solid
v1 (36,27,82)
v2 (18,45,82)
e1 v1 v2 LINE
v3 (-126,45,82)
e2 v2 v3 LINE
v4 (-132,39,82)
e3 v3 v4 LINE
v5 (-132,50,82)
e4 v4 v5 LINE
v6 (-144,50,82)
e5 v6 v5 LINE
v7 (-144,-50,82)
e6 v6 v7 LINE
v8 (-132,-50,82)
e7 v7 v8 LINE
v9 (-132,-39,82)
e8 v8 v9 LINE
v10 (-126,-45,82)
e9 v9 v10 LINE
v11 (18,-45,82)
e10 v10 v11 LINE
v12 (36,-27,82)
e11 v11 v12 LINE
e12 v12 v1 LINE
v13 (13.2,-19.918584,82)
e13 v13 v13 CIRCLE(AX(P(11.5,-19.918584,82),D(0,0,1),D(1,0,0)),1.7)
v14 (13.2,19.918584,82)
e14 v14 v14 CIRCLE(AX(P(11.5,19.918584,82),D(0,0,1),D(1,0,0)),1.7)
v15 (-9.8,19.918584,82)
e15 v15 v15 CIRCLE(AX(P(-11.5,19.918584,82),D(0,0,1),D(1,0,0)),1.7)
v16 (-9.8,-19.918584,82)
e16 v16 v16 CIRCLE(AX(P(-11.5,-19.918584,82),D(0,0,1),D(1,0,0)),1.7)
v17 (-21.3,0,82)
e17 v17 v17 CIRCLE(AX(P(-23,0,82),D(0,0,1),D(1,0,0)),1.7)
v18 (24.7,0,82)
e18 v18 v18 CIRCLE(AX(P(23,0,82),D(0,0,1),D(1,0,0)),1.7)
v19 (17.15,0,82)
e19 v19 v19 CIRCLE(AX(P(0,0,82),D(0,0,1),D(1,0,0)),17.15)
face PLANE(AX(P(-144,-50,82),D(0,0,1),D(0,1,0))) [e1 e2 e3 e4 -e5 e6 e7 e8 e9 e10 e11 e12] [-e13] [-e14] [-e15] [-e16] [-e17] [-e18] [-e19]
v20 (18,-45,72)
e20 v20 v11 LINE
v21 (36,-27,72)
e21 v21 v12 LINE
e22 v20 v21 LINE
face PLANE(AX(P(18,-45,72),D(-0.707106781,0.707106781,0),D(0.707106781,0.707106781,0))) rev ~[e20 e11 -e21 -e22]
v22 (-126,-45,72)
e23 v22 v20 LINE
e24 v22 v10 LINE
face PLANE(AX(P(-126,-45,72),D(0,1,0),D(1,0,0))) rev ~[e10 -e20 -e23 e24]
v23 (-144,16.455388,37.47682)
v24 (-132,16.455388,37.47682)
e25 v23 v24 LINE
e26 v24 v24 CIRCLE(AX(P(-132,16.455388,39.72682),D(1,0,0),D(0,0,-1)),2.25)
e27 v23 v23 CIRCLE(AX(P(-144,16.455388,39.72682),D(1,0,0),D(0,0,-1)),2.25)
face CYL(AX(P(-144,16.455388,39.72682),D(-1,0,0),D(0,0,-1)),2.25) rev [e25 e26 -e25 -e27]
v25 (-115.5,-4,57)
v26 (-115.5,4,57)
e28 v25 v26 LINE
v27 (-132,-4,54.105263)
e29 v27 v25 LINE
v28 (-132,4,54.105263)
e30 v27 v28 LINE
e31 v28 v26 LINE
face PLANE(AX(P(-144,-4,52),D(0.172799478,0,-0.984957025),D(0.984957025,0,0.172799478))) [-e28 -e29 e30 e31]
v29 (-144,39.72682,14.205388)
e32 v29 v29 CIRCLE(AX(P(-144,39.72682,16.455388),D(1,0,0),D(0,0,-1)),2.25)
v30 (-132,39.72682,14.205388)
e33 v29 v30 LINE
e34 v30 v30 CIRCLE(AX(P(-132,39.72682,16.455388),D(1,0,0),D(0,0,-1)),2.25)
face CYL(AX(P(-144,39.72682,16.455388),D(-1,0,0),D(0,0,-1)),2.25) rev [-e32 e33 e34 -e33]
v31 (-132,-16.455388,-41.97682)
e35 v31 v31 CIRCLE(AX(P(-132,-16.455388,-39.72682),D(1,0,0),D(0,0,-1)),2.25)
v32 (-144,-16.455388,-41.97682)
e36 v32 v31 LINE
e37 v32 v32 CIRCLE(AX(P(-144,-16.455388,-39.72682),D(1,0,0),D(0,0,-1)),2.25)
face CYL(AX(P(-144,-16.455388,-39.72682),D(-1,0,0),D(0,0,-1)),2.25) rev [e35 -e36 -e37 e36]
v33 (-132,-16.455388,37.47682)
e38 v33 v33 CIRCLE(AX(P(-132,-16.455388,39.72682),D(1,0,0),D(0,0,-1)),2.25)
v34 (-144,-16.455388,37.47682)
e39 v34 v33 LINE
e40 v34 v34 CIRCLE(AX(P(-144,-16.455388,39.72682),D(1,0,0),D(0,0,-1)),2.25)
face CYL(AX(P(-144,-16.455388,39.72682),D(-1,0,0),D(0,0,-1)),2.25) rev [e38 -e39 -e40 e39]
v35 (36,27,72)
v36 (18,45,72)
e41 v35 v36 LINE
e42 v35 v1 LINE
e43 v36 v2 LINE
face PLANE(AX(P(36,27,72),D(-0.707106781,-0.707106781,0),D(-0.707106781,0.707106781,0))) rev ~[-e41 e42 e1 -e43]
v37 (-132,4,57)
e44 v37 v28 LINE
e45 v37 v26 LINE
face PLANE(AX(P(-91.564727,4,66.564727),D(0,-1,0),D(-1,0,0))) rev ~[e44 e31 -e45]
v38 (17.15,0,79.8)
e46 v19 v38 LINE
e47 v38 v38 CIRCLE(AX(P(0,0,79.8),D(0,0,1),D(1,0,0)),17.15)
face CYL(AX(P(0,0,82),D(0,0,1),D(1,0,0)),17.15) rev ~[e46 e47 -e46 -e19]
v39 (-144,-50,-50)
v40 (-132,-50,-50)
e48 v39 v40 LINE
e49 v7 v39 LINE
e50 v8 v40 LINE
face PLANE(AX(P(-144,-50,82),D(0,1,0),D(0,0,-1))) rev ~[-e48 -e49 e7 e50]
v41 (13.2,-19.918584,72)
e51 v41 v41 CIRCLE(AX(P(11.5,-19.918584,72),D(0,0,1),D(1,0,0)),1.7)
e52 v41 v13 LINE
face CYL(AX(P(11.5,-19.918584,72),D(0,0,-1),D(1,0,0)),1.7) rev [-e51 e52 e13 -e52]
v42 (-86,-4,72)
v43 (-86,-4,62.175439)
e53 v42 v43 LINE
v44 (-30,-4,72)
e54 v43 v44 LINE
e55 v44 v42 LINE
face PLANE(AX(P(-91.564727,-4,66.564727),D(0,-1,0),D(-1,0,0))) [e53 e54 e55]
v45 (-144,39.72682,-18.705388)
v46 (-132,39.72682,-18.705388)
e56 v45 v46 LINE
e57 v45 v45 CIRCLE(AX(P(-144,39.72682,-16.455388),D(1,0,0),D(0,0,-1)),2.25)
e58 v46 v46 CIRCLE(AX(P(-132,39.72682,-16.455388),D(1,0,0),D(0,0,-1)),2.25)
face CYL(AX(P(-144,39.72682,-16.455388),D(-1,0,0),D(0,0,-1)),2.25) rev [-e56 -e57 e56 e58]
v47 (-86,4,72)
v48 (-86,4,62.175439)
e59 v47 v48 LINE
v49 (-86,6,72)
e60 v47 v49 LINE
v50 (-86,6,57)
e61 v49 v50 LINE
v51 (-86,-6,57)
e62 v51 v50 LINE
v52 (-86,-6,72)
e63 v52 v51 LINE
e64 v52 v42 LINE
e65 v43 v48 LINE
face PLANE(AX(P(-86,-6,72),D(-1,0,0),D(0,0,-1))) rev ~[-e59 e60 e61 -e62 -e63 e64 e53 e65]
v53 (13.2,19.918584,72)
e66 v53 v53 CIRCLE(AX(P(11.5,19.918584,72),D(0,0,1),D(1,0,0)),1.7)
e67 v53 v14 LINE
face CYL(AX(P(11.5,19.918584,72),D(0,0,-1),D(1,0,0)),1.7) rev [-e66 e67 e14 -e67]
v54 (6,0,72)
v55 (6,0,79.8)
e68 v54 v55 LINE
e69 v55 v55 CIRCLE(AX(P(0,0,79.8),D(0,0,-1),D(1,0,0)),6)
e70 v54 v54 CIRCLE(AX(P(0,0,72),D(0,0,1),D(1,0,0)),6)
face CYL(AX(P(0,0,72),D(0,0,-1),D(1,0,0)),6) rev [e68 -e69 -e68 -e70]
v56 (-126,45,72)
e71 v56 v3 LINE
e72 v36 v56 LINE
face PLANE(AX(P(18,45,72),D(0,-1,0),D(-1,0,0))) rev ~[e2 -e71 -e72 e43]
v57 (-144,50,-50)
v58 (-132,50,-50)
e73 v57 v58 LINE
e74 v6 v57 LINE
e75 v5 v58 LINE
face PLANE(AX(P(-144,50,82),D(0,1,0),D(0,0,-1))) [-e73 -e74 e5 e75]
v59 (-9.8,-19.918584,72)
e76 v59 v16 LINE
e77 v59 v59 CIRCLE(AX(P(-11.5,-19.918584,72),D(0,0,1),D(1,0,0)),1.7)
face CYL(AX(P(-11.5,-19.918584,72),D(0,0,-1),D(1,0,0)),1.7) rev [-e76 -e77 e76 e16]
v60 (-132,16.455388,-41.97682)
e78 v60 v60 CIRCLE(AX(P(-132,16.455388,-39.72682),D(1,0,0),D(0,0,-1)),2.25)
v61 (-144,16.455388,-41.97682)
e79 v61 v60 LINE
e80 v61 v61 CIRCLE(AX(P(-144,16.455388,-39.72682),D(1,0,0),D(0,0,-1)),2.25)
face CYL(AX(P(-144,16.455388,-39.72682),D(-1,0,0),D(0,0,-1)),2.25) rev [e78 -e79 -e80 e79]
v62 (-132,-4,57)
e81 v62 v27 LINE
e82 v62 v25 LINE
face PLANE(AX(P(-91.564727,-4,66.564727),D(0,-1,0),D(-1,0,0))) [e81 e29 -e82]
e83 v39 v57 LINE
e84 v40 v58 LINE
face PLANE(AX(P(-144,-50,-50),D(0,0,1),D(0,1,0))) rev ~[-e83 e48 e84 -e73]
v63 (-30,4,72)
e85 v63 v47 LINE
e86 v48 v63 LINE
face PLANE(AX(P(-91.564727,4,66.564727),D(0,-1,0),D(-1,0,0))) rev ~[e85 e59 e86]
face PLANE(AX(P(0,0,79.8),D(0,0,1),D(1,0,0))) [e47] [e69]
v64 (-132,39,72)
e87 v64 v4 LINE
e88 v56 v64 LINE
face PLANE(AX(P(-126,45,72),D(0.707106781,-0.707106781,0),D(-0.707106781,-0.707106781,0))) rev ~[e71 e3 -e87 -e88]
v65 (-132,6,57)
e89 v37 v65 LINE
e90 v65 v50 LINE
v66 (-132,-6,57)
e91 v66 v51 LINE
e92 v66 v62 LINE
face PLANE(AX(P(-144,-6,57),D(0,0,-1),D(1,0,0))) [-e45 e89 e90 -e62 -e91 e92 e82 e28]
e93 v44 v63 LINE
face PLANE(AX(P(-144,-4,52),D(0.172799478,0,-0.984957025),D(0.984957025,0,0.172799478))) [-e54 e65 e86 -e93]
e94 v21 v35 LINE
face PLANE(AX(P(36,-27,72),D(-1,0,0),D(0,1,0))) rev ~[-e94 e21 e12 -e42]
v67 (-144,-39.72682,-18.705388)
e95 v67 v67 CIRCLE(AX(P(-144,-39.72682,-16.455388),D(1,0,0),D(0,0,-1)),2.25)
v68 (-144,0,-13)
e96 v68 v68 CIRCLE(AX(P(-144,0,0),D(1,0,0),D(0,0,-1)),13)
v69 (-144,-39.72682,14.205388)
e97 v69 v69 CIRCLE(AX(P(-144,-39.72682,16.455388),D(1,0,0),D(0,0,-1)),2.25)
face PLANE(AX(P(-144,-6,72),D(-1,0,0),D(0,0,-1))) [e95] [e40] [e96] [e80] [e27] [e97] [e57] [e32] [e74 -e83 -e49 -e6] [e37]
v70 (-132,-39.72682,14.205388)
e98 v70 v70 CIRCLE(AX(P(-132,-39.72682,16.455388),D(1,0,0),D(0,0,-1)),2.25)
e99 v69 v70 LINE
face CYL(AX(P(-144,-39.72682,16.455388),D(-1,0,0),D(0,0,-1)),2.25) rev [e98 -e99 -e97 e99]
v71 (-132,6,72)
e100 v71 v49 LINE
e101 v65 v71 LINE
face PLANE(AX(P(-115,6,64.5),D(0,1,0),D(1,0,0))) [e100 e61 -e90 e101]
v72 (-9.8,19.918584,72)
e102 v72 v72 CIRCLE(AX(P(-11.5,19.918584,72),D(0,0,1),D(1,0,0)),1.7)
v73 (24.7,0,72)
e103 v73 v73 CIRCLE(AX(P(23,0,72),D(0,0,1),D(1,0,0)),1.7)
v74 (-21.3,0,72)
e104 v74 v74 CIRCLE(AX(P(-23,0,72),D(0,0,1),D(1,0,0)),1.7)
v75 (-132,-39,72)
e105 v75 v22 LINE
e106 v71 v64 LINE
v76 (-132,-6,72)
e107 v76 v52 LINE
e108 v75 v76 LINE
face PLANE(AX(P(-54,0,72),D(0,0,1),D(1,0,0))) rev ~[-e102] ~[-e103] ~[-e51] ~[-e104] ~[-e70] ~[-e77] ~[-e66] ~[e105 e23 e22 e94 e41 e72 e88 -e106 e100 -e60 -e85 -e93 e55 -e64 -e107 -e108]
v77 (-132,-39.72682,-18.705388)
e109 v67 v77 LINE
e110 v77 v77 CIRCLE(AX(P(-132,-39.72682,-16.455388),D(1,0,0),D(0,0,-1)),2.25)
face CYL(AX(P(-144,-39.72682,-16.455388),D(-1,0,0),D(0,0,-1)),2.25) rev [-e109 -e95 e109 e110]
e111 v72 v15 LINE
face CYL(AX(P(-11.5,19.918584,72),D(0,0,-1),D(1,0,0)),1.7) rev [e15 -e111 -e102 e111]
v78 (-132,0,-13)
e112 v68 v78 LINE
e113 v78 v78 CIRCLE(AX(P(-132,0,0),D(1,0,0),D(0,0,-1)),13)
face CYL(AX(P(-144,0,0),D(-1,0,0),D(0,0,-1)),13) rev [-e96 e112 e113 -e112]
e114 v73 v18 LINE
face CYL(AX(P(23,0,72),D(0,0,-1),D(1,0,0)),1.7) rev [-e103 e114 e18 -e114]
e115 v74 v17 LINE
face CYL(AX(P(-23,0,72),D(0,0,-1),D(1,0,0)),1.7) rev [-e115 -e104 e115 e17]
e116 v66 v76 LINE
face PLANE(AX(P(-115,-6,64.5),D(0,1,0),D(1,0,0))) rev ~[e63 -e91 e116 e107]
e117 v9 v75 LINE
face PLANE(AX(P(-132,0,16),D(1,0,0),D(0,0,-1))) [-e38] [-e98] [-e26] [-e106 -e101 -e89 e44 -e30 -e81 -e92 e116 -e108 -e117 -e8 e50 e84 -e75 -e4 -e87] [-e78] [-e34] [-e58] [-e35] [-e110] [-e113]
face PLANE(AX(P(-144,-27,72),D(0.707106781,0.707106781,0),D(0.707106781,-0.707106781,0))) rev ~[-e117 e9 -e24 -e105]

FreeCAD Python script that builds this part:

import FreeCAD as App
import Part
import Sketcher
from FreeCAD import Vector

doc = App.newDocument("Part")
body = doc.addObject("PartDesign::Body", "Body")

# Sketch on XY plane
sketch1 = body.newObject("Sketcher::SketchObject", "Sketch")
sketch1.AttachmentSupport = (doc.getObject("XY_Plane"), [""])
sketch1.MapMode = "FlatFace"
sketch1.AttachmentOffset = App.Placement(Vector(0, 0, 72), App.Rotation())
sketch1.addGeometry(Part.LineSegment(Vector(-126, -45, 0), Vector(18, -45, 0)), False)
sketch1.addGeometry(Part.LineSegment(Vector(18, -45, 0), Vector(36, -27, 0)), False)
sketch1.addGeometry(Part.LineSegment(Vector(36, -27, 0), Vector(36, 27, 0)), False)
sketch1.addGeometry(Part.LineSegment(Vector(36, 27, 0), Vector(18, 45, 0)), False)
sketch1.addGeometry(Part.LineSegment(Vector(18, 45, 0), Vector(-126, 45, 0)), False)
sketch1.addGeometry(Part.LineSegment(Vector(-126, 45, 0), Vector(-144, 27, 0)), False)
sketch1.addGeometry(Part.LineSegment(Vector(-144, 27, 0), Vector(-144, -27, 0)), False)
sketch1.addGeometry(Part.LineSegment(Vector(-144, -27, 0), Vector(-126, -45, 0)), False)
sketch1.addGeometry(Part.Circle(Vector(-11.5, -19.9, 0), Vector(0, 0, 1), 1.7), False)
sketch1.addGeometry(Part.Circle(Vector(11.5, -19.9, 0), Vector(0, 0, 1), 1.7), False)
sketch1.addGeometry(Part.Circle(Vector(-23, 0, 0), Vector(0, 0, 1), 1.7), False)
sketch1.addGeometry(Part.Circle(Vector(0, 0, 0), Vector(0, 0, 1), 6), False)
sketch1.addGeometry(Part.Circle(Vector(-11.5, 19.9, 0), Vector(0, 0, 1), 1.7), False)
sketch1.addGeometry(Part.Circle(Vector(23, 0, 0), Vector(0, 0, 1), 1.7), False)
sketch1.addGeometry(Part.Circle(Vector(11.5, 19.9, 0), Vector(0, 0, 1), 1.7), False)
sketch1.addConstraint(Sketcher.Constraint("Coincident", 0, 2, 1, 1))
sketch1.addConstraint(Sketcher.Constraint("Coincident", 1, 2, 2, 1))
sketch1.addConstraint(Sketcher.Constraint("Coincident", 2, 2, 3, 1))
sketch1.addConstraint(Sketcher.Constraint("Coincident", 3, 2, 4, 1))
sketch1.addConstraint(Sketcher.Constraint("Coincident", 4, 2, 5, 1))
sketch1.addConstraint(Sketcher.Constraint("Coincident", 5, 2, 6, 1))
sketch1.addConstraint(Sketcher.Constraint("Coincident", 6, 2, 7, 1))
sketch1.addConstraint(Sketcher.Constraint("Coincident", 7, 2, 0, 1))
sketch1.addConstraint(Sketcher.Constraint("Horizontal", 0))
sketch1.addConstraint(Sketcher.Constraint("Vertical", 2))
sketch1.addConstraint(Sketcher.Constraint("Horizontal", 4))
sketch1.addConstraint(Sketcher.Constraint("Vertical", 6))
sketch1.addConstraint(Sketcher.Constraint("Coincident", 11, 3, -1, 1))
sketch1.addConstraint(Sketcher.Constraint("Equal", 8, 9))
sketch1.addConstraint(Sketcher.Constraint("Equal", 9, 10))
sketch1.addConstraint(Sketcher.Constraint("Equal", 10, 12))
sketch1.addConstraint(Sketcher.Constraint("Equal", 12, 13))
sketch1.addConstraint(Sketcher.Constraint("Equal", 13, 14))
sketch1.addConstraint(Sketcher.Constraint("Symmetric", 9, 3, 12, 3, -1, 1))
sketch1.addConstraint(Sketcher.Constraint("Symmetric", 10, 3, 13, 3, -1, 1))
sketch1.addConstraint(Sketcher.Constraint("Symmetric", 8, 3, 14, 3, -1, 1))
sketch1.addConstraint(Sketcher.Constraint("Symmetric", 8, 3, 9, 3, -2))
sketch1.addConstraint(Sketcher.Constraint("Symmetric", 0, 2, 3, 2, -1))
sketch1.addConstraint(Sketcher.Constraint("PointOnObject", 10, 3, -1))
sketch1.addConstraint(Sketcher.Constraint("Perpendicular", 1, 3))
sketch1.addConstraint(Sketcher.Constraint("Perpendicular", 3, 5))
sketch1.addConstraint(Sketcher.Constraint("Perpendicular", 5, 7))
sketch1.addConstraint(Sketcher.Constraint("Horizontal", 2, 2, 5, 2))
sketch1.addConstraint(Sketcher.Constraint("Horizontal", 1, 2, 6, 2))
sketch1.addConstraint(Sketcher.Constraint("Vertical", 4, 2, 7, 2))
sketch1.addConstraint(Sketcher.Constraint("Diameter", 11, 12.0))
sketch1.addConstraint(Sketcher.Constraint("Diameter", 8, 3.4))
sketch1.addConstraint(Sketcher.Constraint("DistanceX", 0, 1, 0, 2, 144.0))
sketch1.addConstraint(Sketcher.Constraint("DistanceY", 2, 1, 2, 2, 54.0))
sketch1.addConstraint(Sketcher.Constraint("DistanceX", 10, 3, -1, 1, 23.0))
sketch1.addConstraint(Sketcher.Constraint("DistanceX", -1, 1, 0, 2, 18.0))
sketch1.addConstraint(Sketcher.Constraint("DistanceY", 0, 2, -1, 1, 45.0))
sketch1.addConstraint(Sketcher.Constraint("DistanceX", 8, 3, 9, 3, 23.0))
sketch1.addConstraint(Sketcher.Constraint("DistanceY", 8, 3, 12, 3, 39.837169))
pad1 = body.newObject("PartDesign::Pad", "Pad")
pad1.Profile = sketch1
pad1.Length = 10

# Sketch on XY plane
sketch2 = body.newObject("Sketcher::SketchObject", "Sketch001")
sketch2.AttachmentSupport = (doc.getObject("XY_Plane"), [""])
sketch2.MapMode = "FlatFace"
sketch2.AttachmentOffset = App.Placement(Vector(0, 0, 82), App.Rotation())
sketch2.addGeometry(Part.Circle(Vector(0, 0, 0), Vector(0, 0, 1), 17), False)
sketch2.addConstraint(Sketcher.Constraint("Coincident", 0, 3, -1, 1))
sketch2.addConstraint(Sketcher.Constraint("Diameter", 0, 34.3))
pocket1 = body.newObject("PartDesign::Pocket", "Pocket")
pocket1.Profile = sketch2
pocket1.Length = 2.2

# Sketch on YZ plane
sketch3 = body.newObject("Sketcher::SketchObject", "Sketch002")
sketch3.AttachmentSupport = (doc.getObject("YZ_Plane"), [""])
sketch3.MapMode = "FlatFace"
sketch3.AttachmentOffset = App.Placement(Vector(0, 0, -144), App.Rotation())
sketch3.addGeometry(Part.LineSegment(Vector(50, 82, 0), Vector(-50, 82, 0)), False)
sketch3.addGeometry(Part.LineSegment(Vector(-50, 82, 0), Vector(-50, -50, 0)), False)
sketch3.addGeometry(Part.LineSegment(Vector(-50, -50, 0), Vector(50, -50, 0)), False)
sketch3.addGeometry(Part.LineSegment(Vector(50, -50, 0), Vector(50, 82, 0)), False)
sketch3.addGeometry(Part.Circle(Vector(-39.7, 16.5, 0), Vector(0, 0, 1), 2.2), False)
sketch3.addGeometry(Part.Circle(Vector(-16.5, 39.7, 0), Vector(0, 0, 1), 2.2), False)
sketch3.addGeometry(Part.Circle(Vector(-39.7, -16.5, 0), Vector(0, 0, 1), 2.2), False)
sketch3.addGeometry(Part.Circle(Vector(-16.5, -39.7, 0), Vector(0, 0, 1), 2.2), False)
sketch3.addGeometry(Part.Circle(Vector(16.5, 39.7, 0), Vector(0, 0, 1), 2.2), False)
sketch3.addGeometry(Part.Circle(Vector(39.7, 16.5, 0), Vector(0, 0, 1), 2.2), False)
sketch3.addGeometry(Part.Circle(Vector(0, 0, 0), Vector(0, 0, 1), 13), False)
sketch3.addGeometry(Part.Circle(Vector(16.5, -39.7, 0), Vector(0, 0, 1), 2.2), False)
sketch3.addGeometry(Part.Circle(Vector(39.7, -16.5, 0), Vector(0, 0, 1), 2.2), False)
sketch3.addConstraint(Sketcher.Constraint("Coincident", 0, 2, 1, 1))
sketch3.addConstraint(Sketcher.Constraint("Coincident", 1, 2, 2, 1))
sketch3.addConstraint(Sketcher.Constraint("Coincident", 2, 2, 3, 1))
sketch3.addConstraint(Sketcher.Constraint("Coincident", 3, 2, 0, 1))
sketch3.addConstraint(Sketcher.Constraint("Horizontal", 0))
sketch3.addConstraint(Sketcher.Constraint("Vertical", 1))
sketch3.addConstraint(Sketcher.Constraint("Horizontal", 2))
sketch3.addConstraint(Sketcher.Constraint("Vertical", 3))
sketch3.addConstraint(Sketcher.Constraint("Coincident", 10, 3, -1, 1))
sketch3.addConstraint(Sketcher.Constraint("Equal", 4, 5))
sketch3.addConstraint(Sketcher.Constraint("Equal", 5, 6))
sketch3.addConstraint(Sketcher.Constraint("Equal", 6, 7))
sketch3.addConstraint(Sketcher.Constraint("Equal", 7, 8))
sketch3.addConstraint(Sketcher.Constraint("Equal", 8, 9))
sketch3.addConstraint(Sketcher.Constraint("Equal", 9, 11))
sketch3.addConstraint(Sketcher.Constraint("Equal", 11, 12))
sketch3.addConstraint(Sketcher.Constraint("Symmetric", 7, 3, 8, 3, -1, 1))
sketch3.addConstraint(Sketcher.Constraint("Symmetric", 6, 3, 9, 3, -1, 1))
sketch3.addConstraint(Sketcher.Constraint("Symmetric", 5, 3, 11, 3, -1, 1))
sketch3.addConstraint(Sketcher.Constraint("Symmetric", 4, 3, 12, 3, -1, 1))
sketch3.addConstraint(Sketcher.Constraint("Symmetric", 5, 3, 8, 3, -2))
sketch3.addConstraint(Sketcher.Constraint("Symmetric", 4, 3, 9, 3, -2))
sketch3.addConstraint(Sketcher.Constraint("Diameter", 10, 26.0))
sketch3.addConstraint(Sketcher.Constraint("Diameter", 4, 4.5))
sketch3.addConstraint(Sketcher.Constraint("DistanceX", 0, 2, 0, 1, 100.0))
sketch3.addConstraint(Sketcher.Constraint("DistanceY", 1, 2, 1, 1, 132.0))
sketch3.addConstraint(Sketcher.Constraint("DistanceX", 0, 2, -1, 1, 50.0))
sketch3.addConstraint(Sketcher.Constraint("DistanceY", -1, 1, 0, 2, 82.0))
sketch3.addConstraint(Sketcher.Constraint("DistanceX", 4, 3, -1, 1, 39.72682))
sketch3.addConstraint(Sketcher.Constraint("DistanceY", -1, 1, 5, 3, 39.72682))
sketch3.addConstraint(Sketcher.Constraint("DistanceY", -1, 1, 4, 3, 16.455388))
sketch3.addConstraint(Sketcher.Constraint("DistanceX", 5, 3, -1, 1, 16.455388))
pad2 = body.newObject("PartDesign::Pad", "Pad001")
pad2.Profile = sketch3
pad2.Length = 12

# Sketch on XZ plane
sketch4 = body.newObject("Sketcher::SketchObject", "Sketch003")
sketch4.AttachmentSupport = (doc.getObject("XZ_Plane"), [""])
sketch4.MapMode = "FlatFace"
sketch4.AttachmentOffset = App.Placement(Vector(0, 0, 4), App.Rotation())
sketch4.addGeometry(Part.LineSegment(Vector(-30, 72, 0), Vector(-144, 52, 0)), False)
sketch4.addGeometry(Part.LineSegment(Vector(-144, 52, 0), Vector(-144, 72, 0)), False)
sketch4.addGeometry(Part.LineSegment(Vector(-144, 72, 0), Vector(-30, 72, 0)), False)
sketch4.addConstraint(Sketcher.Constraint("Coincident", 0, 2, 1, 1))
sketch4.addConstraint(Sketcher.Constraint("Coincident", 1, 2, 2, 1))
sketch4.addConstraint(Sketcher.Constraint("Coincident", 2, 2, 0, 1))
sketch4.addConstraint(Sketcher.Constraint("Vertical", 1))
sketch4.addConstraint(Sketcher.Constraint("Horizontal", 2))
sketch4.addConstraint(Sketcher.Constraint("DistanceX", 2, 1, 2, 2, 114.0))
sketch4.addConstraint(Sketcher.Constraint("DistanceY", 1, 1, 1, 2, 20.0))
sketch4.addConstraint(Sketcher.Constraint("DistanceX", 0, 2, -1, 1, 144.0))
sketch4.addConstraint(Sketcher.Constraint("DistanceY", -1, 1, 0, 2, 52.0))
pad3 = body.newObject("PartDesign::Pad", "Pad002")
pad3.Profile = sketch4
pad3.Length = 8
pad3.Reversed = True

# Sketch on XZ plane
sketch5 = body.newObject("Sketcher::SketchObject", "Sketch004")
sketch5.AttachmentSupport = (doc.getObject("XZ_Plane"), [""])
sketch5.MapMode = "FlatFace"
sketch5.AttachmentOffset = App.Placement(Vector(0, 0, 6), App.Rotation())
sketch5.addGeometry(Part.LineSegment(Vector(-144, 57, 0), Vector(-144, 72, 0)), False)
sketch5.addGeometry(Part.LineSegment(Vector(-144, 72, 0), Vector(-86, 72, 0)), False)
sketch5.addGeometry(Part.LineSegment(Vector(-86, 72, 0), Vector(-86, 57, 0)), False)
sketch5.addGeometry(Part.LineSegment(Vector(-86, 57, 0), Vector(-144, 57, 0)), False)
sketch5.addConstraint(Sketcher.Constraint("Coincident", 0, 2, 1, 1))
sketch5.addConstraint(Sketcher.Constraint("Coincident", 1, 2, 2, 1))
sketch5.addConstraint(Sketcher.Constraint("Coincident", 2, 2, 3, 1))
sketch5.addConstraint(Sketcher.Constraint("Coincident", 3, 2, 0, 1))
sketch5.addConstraint(Sketcher.Constraint("Vertical", 0))
sketch5.addConstraint(Sketcher.Constraint("Horizontal", 1))
sketch5.addConstraint(Sketcher.Constraint("Vertical", 2))
sketch5.addConstraint(Sketcher.Constraint("Horizontal", 3))
sketch5.addConstraint(Sketcher.Constraint("DistanceX", 1, 1, 1, 2, 58.0))
sketch5.addConstraint(Sketcher.Constraint("DistanceY", 0, 1, 0, 2, 15.0))
sketch5.addConstraint(Sketcher.Constraint("DistanceX", 0, 2, -1, 1, 144.0))
sketch5.addConstraint(Sketcher.Constraint("DistanceY", -1, 1, 0, 2, 72.0))
pad4 = body.newObject("PartDesign::Pad", "Pad003")
pad4.Profile = sketch5
pad4.Length = 12
pad4.Reversed = True

doc.recompute()
